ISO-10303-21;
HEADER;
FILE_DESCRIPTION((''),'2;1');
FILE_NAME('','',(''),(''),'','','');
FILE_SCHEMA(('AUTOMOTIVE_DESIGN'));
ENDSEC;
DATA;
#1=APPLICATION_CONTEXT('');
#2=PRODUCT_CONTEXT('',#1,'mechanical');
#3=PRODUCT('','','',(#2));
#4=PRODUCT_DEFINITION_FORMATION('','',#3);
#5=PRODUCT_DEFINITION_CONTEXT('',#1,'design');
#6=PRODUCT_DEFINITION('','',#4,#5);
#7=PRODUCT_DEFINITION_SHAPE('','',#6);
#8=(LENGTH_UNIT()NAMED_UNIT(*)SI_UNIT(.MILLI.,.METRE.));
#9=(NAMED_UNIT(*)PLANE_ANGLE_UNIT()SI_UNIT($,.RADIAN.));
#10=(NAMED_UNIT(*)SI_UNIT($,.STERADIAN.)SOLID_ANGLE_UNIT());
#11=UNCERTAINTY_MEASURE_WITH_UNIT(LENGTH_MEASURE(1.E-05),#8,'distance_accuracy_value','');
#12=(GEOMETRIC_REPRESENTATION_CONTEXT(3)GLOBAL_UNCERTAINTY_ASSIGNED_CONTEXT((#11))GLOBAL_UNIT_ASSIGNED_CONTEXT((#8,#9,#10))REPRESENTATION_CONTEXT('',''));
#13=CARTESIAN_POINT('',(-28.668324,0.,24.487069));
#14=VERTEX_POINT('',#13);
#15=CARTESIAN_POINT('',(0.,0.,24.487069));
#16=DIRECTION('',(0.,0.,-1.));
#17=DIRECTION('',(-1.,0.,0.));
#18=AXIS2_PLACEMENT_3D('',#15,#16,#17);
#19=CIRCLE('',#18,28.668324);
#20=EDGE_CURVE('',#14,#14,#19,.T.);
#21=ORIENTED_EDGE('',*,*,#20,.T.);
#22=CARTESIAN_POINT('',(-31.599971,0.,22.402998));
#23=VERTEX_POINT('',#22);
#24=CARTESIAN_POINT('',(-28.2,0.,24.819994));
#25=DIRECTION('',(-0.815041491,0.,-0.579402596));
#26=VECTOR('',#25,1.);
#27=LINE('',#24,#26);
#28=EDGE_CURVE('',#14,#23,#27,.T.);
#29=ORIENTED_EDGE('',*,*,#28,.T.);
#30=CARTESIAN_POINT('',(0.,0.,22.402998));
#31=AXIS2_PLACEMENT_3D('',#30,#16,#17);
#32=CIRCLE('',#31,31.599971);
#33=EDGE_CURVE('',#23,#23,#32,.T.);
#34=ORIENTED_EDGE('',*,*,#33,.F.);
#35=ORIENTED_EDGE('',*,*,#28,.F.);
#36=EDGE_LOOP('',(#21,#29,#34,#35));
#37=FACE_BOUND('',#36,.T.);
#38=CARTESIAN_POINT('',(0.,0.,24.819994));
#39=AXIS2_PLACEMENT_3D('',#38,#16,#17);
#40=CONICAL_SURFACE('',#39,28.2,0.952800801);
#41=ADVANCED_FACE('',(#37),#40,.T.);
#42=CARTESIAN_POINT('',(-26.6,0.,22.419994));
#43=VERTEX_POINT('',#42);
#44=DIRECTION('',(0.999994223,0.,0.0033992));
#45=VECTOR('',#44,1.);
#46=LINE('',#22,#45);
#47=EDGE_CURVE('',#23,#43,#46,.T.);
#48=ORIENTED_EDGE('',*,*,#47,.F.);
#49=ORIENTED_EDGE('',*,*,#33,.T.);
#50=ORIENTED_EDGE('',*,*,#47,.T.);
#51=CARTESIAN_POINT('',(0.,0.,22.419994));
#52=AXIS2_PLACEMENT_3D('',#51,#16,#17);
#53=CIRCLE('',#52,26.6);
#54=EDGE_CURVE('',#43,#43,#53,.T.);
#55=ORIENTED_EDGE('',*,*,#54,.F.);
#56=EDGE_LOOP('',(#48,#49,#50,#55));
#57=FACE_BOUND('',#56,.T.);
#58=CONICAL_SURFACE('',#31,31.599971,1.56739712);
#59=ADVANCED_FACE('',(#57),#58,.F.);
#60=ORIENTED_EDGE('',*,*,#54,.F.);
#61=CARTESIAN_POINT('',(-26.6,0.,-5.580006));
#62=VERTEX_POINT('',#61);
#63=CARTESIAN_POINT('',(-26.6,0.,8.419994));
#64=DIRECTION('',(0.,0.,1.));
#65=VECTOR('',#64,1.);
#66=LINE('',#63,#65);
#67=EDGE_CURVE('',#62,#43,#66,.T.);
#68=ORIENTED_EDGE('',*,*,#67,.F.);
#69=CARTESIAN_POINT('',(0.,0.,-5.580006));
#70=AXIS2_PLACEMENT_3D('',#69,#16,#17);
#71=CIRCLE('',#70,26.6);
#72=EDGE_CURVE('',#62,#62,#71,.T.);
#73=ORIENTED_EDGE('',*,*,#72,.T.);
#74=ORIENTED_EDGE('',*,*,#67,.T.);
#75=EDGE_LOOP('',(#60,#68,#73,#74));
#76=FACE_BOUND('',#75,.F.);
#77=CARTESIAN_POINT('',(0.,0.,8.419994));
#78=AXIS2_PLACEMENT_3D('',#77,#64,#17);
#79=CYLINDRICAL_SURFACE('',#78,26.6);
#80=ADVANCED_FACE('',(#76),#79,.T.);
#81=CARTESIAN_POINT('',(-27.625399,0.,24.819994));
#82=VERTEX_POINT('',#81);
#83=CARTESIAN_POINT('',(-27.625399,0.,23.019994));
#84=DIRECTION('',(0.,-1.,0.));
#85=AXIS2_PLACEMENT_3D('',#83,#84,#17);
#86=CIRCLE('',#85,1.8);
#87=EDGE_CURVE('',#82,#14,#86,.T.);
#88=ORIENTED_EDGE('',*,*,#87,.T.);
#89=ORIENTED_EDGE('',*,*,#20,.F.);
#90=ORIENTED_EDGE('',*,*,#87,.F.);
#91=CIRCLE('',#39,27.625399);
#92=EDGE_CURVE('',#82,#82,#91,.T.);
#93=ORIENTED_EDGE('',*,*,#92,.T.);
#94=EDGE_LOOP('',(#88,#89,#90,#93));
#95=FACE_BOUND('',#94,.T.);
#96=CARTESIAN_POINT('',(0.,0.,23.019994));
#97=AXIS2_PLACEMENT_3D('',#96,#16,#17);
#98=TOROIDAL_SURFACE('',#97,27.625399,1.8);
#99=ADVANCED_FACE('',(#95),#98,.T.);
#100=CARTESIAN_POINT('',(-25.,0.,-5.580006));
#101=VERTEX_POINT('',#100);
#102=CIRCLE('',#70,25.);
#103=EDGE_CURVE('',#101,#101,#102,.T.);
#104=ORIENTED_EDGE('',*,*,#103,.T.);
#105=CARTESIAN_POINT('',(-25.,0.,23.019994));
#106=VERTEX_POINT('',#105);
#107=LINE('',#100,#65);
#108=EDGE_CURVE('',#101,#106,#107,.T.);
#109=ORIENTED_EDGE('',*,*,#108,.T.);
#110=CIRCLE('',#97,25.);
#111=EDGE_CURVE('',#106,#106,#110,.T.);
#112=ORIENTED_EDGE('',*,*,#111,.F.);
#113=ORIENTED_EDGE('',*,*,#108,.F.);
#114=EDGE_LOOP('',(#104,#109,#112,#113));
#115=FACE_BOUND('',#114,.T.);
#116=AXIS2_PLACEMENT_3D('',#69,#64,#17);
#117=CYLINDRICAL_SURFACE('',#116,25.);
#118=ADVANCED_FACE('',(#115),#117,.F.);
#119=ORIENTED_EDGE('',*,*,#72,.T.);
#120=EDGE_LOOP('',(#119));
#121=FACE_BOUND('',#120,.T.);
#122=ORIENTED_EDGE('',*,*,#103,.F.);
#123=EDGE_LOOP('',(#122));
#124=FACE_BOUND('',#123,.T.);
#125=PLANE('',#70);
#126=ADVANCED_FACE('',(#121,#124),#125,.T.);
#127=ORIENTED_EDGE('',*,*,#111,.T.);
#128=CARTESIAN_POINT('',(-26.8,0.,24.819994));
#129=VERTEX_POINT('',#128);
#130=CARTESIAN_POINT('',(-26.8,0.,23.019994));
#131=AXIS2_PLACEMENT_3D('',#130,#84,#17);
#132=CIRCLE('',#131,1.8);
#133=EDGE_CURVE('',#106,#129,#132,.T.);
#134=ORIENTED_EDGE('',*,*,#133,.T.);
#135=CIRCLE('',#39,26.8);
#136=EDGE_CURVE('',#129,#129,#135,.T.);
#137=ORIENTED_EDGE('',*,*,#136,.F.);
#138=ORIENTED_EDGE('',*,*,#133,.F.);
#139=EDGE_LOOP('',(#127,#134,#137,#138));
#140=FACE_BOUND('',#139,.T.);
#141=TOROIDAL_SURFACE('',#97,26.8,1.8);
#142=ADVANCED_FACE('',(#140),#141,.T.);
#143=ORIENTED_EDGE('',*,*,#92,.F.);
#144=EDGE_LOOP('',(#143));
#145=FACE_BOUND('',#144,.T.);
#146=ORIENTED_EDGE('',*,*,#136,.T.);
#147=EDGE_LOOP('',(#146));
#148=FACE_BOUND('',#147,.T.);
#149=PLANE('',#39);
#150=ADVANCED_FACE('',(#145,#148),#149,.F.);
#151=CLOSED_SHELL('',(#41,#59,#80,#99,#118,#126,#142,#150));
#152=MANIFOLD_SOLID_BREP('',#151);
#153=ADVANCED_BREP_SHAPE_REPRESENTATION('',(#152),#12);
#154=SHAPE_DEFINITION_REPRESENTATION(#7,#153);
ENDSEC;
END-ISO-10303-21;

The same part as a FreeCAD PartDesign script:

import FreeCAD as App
import Part
import Sketcher
from FreeCAD import Vector


def edges_at(feature, points):
    """Names of the edges that pass closest to the given points."""
    edges = feature.Shape.Edges
    near = lambda p: min(range(len(edges)), key=lambda i: edges[i].distToShape(Part.Vertex(*p))[0])
    return sorted({f"Edge{near(p) + 1}" for p in points})

doc = App.newDocument("Part")
body = doc.addObject("PartDesign::Body", "Body")

sketch1 = body.newObject("Sketcher::SketchObject", "Sketch")
sketch1.AttachmentSupport = (doc.getObject("XZ_Plane"), [""])
sketch1.MapMode = "FlatFace"
sketch1.addGeometry(Part.LineSegment(Vector(-31.6, 22.4, 0), Vector(-26.6, 22.4, 0)), False)
sketch1.addGeometry(Part.LineSegment(Vector(-26.6, 22.4, 0), Vector(-26.6, -5.6, 0)), False)
sketch1.addGeometry(Part.LineSegment(Vector(-26.6, -5.6, 0), Vector(-25, -5.6, 0)), False)
sketch1.addGeometry(Part.LineSegment(Vector(-25, -5.6, 0), Vector(-25, 24.8, 0)), False)
sketch1.addGeometry(Part.LineSegment(Vector(-25, 24.8, 0), Vector(-28.2, 24.8, 0)), False)
sketch1.addGeometry(Part.LineSegment(Vector(-28.2, 24.8, 0), Vector(-31.6, 22.4, 0)), False)
sketch1.addConstraint(Sketcher.Constraint("Coincident", 0, 2, 1, 1))
sketch1.addConstraint(Sketcher.Constraint("Coincident", 1, 2, 2, 1))
sketch1.addConstraint(Sketcher.Constraint("Coincident", 2, 2, 3, 1))
sketch1.addConstraint(Sketcher.Constraint("Coincident", 3, 2, 4, 1))
sketch1.addConstraint(Sketcher.Constraint("Coincident", 4, 2, 5, 1))
sketch1.addConstraint(Sketcher.Constraint("Coincident", 5, 2, 0, 1))
sketch1.addConstraint(Sketcher.Constraint("Vertical", 1))
sketch1.addConstraint(Sketcher.Constraint("Horizontal", 2))
sketch1.addConstraint(Sketcher.Constraint("Vertical", 3))
sketch1.addConstraint(Sketcher.Constraint("Horizontal", 4))
sketch1.addConstraint(Sketcher.Constraint("DistanceY", 1, 2, 1, 1, 28.0))
sketch1.addConstraint(Sketcher.Constraint("Distance", 0, 5.0))
sketch1.addConstraint(Sketcher.Constraint("DistanceX", 2, 1, 2, 2, 1.6))
sketch1.addConstraint(Sketcher.Constraint("DistanceX", 4, 2, 4, 1, 3.2))
sketch1.addConstraint(Sketcher.Constraint("DistanceY", 3, 1, 3, 2, 30.4))
sketch1.addConstraint(Sketcher.Constraint("DistanceX", 2, 2, -1, 1, 25.0))
sketch1.addConstraint(Sketcher.Constraint("DistanceY", -1, 1, 5, 2, 22.402998))
sketch1.addConstraint(Sketcher.Constraint("Distance", 5, 4.171531))
revolution = body.newObject("PartDesign::Revolution", "Revolution")
revolution.Profile = sketch1
revolution.ReferenceAxis = (sketch1, ["V_Axis"])
revolution.Angle = 360
doc.recompute()

fillet = body.newObject("PartDesign::Fillet", "Fillet")
fillet.Base = (revolution, edges_at(revolution, [(25, 0, 24.82), (28.2, 0, 24.82)]))
fillet.Radius = 1.8

doc.recompute()
